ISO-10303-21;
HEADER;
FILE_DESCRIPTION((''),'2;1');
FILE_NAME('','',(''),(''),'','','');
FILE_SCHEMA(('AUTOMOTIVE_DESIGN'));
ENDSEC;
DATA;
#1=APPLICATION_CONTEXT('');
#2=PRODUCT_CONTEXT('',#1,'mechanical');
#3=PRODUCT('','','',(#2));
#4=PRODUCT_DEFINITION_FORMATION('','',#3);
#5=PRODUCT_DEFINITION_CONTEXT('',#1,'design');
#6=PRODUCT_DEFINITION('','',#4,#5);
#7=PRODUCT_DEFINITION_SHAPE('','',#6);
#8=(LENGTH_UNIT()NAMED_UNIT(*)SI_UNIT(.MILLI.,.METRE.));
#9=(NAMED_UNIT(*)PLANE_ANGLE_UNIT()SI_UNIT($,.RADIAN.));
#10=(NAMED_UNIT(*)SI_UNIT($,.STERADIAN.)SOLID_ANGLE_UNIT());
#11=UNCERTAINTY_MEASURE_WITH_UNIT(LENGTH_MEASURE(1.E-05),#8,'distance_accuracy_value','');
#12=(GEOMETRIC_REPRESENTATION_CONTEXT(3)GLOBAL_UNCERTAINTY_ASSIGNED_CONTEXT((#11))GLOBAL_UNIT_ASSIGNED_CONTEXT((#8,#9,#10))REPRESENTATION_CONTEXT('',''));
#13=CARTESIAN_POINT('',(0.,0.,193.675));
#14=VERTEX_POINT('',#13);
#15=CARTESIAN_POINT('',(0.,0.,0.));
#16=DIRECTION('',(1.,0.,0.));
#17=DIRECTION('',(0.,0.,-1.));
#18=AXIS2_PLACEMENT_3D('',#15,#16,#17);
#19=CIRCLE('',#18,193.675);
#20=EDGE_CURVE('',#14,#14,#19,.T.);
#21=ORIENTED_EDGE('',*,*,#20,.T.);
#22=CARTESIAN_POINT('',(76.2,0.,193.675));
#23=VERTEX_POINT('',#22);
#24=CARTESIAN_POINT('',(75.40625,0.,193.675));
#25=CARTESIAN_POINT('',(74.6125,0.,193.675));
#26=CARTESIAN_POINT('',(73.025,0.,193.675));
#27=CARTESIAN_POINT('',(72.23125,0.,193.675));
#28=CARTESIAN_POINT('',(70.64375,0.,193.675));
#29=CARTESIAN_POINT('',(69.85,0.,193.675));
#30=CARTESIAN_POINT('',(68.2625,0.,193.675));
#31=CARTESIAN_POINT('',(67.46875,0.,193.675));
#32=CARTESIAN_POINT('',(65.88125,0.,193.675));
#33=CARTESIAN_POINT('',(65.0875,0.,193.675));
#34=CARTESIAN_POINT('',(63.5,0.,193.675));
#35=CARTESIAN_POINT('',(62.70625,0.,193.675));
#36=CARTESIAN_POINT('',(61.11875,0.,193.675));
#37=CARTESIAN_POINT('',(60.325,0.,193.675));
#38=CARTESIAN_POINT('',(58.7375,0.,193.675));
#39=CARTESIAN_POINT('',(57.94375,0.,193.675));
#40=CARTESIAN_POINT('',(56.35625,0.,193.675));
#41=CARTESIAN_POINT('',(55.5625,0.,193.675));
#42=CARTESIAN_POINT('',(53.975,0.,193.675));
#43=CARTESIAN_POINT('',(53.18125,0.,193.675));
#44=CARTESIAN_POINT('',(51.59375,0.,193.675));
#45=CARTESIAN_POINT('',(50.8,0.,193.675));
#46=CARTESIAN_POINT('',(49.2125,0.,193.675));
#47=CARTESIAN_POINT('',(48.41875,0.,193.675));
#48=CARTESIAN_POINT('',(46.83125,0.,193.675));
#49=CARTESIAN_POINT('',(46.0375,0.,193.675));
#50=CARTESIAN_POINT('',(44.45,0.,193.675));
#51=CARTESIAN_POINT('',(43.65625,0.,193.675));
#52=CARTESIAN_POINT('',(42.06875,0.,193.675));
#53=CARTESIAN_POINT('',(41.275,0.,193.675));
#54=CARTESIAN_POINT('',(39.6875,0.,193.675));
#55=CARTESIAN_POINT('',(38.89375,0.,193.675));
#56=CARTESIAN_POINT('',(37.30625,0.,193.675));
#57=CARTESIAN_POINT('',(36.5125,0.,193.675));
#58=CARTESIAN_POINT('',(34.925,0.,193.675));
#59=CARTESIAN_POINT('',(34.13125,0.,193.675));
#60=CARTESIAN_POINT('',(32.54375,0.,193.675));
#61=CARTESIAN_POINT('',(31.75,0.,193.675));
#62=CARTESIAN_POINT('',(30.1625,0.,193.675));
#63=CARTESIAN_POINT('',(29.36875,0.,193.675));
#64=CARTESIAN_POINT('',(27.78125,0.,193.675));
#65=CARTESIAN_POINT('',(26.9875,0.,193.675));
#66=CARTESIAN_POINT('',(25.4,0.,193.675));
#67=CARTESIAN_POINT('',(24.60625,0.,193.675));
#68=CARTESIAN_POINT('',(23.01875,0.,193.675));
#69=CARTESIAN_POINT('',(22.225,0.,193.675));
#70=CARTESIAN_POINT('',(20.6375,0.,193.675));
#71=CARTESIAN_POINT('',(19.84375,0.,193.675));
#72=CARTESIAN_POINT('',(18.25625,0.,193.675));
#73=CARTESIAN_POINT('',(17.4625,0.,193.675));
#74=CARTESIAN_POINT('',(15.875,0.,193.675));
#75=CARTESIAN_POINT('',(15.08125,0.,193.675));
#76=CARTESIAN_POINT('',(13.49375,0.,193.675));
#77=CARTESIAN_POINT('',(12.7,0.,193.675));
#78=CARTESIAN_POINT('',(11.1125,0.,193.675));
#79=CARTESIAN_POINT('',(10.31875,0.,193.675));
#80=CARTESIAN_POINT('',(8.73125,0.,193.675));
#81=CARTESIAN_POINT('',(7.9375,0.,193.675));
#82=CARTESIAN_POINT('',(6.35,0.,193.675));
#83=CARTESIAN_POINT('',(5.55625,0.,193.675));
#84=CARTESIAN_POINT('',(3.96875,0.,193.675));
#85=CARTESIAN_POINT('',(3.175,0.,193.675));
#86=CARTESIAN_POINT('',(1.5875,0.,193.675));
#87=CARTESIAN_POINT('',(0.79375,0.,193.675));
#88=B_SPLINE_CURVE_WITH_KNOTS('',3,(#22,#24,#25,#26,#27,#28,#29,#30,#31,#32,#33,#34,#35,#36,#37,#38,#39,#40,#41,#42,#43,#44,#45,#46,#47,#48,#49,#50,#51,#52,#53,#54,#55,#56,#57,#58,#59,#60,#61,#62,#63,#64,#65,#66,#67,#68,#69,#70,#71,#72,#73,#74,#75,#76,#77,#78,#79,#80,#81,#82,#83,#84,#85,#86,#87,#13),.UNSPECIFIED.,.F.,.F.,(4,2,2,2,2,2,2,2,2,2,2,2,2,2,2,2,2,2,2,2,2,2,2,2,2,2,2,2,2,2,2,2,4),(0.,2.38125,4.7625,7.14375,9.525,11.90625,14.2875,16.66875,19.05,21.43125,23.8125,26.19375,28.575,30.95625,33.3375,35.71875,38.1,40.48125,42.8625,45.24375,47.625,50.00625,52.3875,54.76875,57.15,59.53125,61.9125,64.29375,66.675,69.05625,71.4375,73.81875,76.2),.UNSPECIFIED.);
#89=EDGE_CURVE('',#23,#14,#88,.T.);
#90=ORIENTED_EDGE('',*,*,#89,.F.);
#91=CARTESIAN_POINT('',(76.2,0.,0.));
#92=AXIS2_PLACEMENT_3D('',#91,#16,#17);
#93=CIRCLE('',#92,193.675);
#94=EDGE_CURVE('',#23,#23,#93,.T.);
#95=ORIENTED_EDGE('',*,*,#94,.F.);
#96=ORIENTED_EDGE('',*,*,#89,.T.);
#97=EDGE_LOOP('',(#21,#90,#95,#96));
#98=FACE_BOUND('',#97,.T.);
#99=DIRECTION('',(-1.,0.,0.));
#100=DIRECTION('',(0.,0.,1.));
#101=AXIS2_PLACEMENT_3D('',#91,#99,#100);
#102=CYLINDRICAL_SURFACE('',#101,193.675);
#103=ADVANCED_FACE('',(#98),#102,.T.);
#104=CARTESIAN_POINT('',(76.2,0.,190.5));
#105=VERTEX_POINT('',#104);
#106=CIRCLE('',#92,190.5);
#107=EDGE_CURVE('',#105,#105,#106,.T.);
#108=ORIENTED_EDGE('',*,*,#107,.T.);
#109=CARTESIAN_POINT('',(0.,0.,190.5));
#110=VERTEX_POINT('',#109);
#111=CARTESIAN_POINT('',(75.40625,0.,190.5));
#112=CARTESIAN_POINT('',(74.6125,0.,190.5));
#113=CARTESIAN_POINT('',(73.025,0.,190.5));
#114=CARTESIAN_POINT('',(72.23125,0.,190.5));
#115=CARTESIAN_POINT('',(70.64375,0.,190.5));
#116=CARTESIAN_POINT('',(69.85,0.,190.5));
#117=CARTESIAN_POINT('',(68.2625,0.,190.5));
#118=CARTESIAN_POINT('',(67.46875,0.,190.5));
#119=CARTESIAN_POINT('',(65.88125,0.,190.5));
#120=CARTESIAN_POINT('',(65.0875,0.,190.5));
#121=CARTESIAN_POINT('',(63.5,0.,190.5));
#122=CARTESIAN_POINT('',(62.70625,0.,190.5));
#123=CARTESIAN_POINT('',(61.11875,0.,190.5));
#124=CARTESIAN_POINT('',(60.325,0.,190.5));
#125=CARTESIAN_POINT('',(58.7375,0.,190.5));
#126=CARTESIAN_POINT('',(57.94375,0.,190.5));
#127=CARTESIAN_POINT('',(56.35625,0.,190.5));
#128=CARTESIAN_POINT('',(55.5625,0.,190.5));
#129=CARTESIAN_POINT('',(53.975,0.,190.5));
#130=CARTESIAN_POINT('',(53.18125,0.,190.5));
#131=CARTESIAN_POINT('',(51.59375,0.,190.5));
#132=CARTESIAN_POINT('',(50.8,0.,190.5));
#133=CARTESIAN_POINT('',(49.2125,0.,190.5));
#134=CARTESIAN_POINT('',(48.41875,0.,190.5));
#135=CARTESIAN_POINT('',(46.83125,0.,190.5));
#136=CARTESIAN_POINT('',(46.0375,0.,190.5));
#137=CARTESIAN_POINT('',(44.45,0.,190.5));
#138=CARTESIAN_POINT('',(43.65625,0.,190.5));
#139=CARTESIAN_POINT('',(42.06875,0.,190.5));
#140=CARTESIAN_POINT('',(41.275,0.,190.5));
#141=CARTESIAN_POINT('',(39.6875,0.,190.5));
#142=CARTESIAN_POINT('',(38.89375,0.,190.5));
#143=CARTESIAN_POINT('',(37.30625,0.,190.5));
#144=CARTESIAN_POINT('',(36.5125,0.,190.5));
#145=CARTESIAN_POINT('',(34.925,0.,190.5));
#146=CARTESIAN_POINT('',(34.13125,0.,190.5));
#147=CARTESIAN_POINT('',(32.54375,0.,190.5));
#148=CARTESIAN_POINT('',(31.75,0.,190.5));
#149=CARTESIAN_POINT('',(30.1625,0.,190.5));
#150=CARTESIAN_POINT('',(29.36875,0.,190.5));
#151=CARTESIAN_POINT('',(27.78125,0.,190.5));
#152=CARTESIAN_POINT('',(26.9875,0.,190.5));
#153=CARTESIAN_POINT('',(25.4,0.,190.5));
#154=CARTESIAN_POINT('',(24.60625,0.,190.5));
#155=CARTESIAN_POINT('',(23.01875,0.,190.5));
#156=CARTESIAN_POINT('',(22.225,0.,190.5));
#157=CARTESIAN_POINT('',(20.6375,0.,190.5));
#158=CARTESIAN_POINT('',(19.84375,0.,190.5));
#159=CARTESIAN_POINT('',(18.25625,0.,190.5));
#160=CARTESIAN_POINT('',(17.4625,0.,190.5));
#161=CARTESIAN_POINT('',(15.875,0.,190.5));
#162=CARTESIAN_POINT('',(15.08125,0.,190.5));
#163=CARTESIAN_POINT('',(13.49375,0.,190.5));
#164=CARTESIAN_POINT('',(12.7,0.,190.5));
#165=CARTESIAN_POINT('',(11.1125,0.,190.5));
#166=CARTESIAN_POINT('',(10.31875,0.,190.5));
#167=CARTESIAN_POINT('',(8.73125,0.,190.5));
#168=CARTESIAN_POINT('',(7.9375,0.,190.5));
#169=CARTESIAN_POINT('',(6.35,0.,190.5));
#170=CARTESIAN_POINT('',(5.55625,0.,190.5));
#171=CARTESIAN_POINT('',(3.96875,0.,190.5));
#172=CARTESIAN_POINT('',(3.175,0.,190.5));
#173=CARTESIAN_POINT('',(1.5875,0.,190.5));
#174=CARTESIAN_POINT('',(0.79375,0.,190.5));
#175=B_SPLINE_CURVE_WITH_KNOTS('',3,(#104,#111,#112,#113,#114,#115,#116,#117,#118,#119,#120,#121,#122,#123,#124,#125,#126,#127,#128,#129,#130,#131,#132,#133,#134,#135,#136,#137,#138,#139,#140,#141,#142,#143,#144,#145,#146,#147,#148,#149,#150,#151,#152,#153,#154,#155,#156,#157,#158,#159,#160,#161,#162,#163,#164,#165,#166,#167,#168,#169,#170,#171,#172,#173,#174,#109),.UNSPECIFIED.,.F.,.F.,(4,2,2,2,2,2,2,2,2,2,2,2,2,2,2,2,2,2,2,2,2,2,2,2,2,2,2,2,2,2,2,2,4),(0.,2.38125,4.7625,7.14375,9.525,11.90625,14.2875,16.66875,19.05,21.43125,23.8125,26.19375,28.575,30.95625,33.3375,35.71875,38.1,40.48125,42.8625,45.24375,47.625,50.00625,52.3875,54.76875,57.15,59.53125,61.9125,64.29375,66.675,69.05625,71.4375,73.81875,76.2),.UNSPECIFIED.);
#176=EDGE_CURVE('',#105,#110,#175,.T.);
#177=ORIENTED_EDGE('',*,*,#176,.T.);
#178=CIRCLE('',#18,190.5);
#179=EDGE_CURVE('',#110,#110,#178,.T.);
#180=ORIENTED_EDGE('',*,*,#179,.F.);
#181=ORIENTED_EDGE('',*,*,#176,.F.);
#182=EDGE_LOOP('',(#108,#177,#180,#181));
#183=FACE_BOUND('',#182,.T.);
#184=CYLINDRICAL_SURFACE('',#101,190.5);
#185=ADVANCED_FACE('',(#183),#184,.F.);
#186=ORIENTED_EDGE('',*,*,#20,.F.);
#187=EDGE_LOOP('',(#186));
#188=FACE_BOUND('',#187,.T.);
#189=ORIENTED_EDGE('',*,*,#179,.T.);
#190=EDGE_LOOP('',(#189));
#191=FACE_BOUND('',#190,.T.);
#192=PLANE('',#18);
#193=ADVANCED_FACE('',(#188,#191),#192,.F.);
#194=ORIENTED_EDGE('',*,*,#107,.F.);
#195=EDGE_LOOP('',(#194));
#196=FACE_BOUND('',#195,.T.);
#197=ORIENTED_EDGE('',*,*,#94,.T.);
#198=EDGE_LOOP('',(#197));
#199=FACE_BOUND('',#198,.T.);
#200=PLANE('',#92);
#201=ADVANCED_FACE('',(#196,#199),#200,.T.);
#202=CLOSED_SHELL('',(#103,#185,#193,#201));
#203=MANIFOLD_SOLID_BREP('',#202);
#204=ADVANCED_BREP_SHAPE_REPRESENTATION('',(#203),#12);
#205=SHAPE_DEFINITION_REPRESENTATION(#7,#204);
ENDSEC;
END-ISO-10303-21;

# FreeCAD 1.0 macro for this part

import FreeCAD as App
import Part
import Sketcher

V = App.Vector
Q = App.Units.Quantity

doc = App.newDocument("Part")
body = doc.addObject("PartDesign::Body", "Body")

sketch1 = doc.addObject("Sketcher::SketchObject", "Sketch")
body.addObject(sketch1)
sketch1.AttachmentSupport = (doc.YZ_Plane, [""])
sketch1.MapMode = "FlatFace"
sketch1.addGeometry(Part.Circle(V(0, 0, 0), V(0, 0, 1), 194), False)
sketch1.addGeometry(Part.Circle(V(0, 0, 0), V(0, 0, 1), 190), False)
sketch1.addConstraint(Sketcher.Constraint("Coincident", 0, 3, -1, 1))
sketch1.addConstraint(Sketcher.Constraint("Coincident", 1, 3, -1, 1))
sketch1.addConstraint(Sketcher.Constraint("Diameter", 1, Q("15 in")))
sketch1.addConstraint(Sketcher.Constraint("Diameter", 0, Q("15.25 in")))
pad1 = doc.addObject("PartDesign::Pad", "Pad")
body.addObject(pad1)
pad1.Profile = sketch1
pad1.Length = Q("3 in")

doc.recompute()
